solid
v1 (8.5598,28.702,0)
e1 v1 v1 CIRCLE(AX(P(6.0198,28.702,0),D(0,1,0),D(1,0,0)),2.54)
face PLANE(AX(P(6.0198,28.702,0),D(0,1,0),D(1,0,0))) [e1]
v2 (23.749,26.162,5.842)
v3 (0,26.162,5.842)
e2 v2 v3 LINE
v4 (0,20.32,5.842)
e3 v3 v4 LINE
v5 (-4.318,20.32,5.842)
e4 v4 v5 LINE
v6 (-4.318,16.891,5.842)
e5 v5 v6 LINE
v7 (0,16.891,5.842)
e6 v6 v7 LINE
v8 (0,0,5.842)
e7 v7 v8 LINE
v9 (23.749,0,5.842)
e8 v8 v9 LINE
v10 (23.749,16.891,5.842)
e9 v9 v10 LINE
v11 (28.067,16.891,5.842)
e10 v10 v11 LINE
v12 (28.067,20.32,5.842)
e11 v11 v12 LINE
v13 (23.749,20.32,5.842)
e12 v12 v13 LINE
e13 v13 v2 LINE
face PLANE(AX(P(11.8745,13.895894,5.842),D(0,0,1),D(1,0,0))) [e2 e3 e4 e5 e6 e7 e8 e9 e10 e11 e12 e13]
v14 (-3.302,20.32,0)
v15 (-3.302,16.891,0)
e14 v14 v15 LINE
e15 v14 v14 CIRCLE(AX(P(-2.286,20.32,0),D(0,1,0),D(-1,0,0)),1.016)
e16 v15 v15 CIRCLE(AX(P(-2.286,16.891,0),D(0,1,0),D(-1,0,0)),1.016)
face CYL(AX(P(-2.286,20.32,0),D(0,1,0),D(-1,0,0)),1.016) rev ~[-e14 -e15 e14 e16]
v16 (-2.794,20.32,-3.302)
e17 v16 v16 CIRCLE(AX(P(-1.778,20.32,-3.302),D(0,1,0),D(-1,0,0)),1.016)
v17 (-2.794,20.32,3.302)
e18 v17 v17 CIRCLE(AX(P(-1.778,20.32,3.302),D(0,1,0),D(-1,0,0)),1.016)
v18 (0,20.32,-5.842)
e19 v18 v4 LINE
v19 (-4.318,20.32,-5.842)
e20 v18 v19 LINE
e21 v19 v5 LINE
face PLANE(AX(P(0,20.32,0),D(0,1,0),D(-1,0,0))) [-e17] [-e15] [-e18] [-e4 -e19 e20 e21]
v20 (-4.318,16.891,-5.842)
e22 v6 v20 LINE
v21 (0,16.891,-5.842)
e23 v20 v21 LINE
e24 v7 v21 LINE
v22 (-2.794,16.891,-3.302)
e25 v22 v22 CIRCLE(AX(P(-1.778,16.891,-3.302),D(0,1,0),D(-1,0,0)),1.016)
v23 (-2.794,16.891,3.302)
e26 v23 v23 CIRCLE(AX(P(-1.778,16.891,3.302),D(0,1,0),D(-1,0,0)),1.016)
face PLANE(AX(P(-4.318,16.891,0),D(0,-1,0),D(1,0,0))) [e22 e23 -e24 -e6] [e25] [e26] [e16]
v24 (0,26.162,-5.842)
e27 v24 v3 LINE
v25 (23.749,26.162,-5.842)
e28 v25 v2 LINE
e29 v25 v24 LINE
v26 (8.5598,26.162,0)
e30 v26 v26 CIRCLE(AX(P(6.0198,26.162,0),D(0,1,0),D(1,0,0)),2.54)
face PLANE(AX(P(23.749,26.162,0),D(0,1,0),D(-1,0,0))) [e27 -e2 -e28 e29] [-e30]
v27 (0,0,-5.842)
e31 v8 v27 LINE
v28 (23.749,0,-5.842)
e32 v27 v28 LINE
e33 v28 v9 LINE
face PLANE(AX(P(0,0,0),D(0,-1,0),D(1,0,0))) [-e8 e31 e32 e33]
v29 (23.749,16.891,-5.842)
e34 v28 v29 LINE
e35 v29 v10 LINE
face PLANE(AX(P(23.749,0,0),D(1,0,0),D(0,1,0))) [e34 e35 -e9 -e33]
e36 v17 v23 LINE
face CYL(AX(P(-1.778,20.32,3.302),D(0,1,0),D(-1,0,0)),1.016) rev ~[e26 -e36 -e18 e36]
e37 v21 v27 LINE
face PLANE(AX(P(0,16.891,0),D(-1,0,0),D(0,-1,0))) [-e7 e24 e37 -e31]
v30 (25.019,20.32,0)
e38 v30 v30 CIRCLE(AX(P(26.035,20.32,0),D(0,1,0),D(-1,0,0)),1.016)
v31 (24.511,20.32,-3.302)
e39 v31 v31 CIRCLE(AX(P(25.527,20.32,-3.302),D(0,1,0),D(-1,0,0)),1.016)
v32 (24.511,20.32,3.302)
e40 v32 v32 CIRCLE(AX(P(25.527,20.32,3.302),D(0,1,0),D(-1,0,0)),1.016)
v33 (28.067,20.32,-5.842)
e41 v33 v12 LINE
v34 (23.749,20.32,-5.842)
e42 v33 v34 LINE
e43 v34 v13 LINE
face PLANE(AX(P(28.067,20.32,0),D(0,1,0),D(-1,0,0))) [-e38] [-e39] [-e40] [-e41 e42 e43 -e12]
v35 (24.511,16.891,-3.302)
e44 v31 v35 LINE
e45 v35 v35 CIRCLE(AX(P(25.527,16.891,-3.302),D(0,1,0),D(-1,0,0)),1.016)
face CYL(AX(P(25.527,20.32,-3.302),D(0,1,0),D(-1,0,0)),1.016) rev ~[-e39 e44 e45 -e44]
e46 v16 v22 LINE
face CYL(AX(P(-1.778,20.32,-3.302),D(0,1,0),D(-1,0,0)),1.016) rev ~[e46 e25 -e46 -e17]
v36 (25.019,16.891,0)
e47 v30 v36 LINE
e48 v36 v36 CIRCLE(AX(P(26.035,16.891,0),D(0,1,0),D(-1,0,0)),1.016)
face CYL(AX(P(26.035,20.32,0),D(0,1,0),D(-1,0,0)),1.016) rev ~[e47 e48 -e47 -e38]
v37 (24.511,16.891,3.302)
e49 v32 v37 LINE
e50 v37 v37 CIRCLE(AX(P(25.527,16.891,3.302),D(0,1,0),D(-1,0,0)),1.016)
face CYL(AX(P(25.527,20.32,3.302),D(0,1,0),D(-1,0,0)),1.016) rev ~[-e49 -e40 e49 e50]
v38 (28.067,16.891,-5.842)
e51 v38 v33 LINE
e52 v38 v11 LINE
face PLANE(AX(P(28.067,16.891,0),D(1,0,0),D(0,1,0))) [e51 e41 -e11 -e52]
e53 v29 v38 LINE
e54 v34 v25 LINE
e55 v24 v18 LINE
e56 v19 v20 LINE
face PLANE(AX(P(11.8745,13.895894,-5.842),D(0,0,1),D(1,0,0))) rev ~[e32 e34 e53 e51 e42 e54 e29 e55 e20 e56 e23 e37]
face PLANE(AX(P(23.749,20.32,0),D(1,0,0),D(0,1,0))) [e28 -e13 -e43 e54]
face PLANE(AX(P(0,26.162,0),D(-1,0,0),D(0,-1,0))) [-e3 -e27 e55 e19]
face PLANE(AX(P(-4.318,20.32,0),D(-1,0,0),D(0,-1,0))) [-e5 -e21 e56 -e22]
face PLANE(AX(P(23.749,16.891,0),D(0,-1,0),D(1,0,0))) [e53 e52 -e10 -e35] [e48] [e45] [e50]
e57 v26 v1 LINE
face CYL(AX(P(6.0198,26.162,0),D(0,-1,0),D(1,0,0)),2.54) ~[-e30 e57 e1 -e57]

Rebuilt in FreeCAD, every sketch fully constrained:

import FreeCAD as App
import Part
import Sketcher
Q = App.Units.Quantity


def add_polygon(sketch, points):
    """Adds a closed chain of lines whose ends are joined by coincident constraints."""
    first, n = sketch.GeometryCount, len(points)
    for a, b in zip(points, points[1:] + points[:1]):
        sketch.addGeometry(Part.LineSegment(App.Vector(*a, 0), App.Vector(*b, 0)), False)
    for i in range(n):
        sketch.addConstraint(Sketcher.Constraint("Coincident", first + i, 2, first + (i + 1) % n, 1))

doc = App.newDocument("Part")
body = doc.addObject("PartDesign::Body", "Body")

# Sketch on XY plane
sketch1 = body.newObject("Sketcher::SketchObject", "Sketch")
sketch1.AttachmentSupport = (doc.getObject("XY_Plane"), [""])
sketch1.MapMode = "FlatFace"
add_polygon(sketch1, [(0, 0), (23.7, 0), (23.7, 16.9), (28.1, 16.9), (28.1, 20.3), (23.7, 20.3), (23.7, 26.2), (0, 26.2), (0, 20.3), (-4.3, 20.3), (-4.3, 16.9), (0, 16.9)])  # lines 0-11
sketch1.addConstraint([
    Sketcher.Constraint("Horizontal", 0),
    Sketcher.Constraint("Vertical", 1),
    Sketcher.Constraint("Horizontal", 2),
    Sketcher.Constraint("Vertical", 3),
    Sketcher.Constraint("Horizontal", 4),
    Sketcher.Constraint("Vertical", 5),
    Sketcher.Constraint("Horizontal", 6),
    Sketcher.Constraint("Vertical", 7),
    Sketcher.Constraint("Horizontal", 8),
    Sketcher.Constraint("Vertical", 9),
    Sketcher.Constraint("Horizontal", 10),
    Sketcher.Constraint("Vertical", 11),
    Sketcher.Constraint("Coincident", 11, 2, -1, 1),
    Sketcher.Constraint("PointOnObject", 6, 2, -2),
    Sketcher.Constraint("Horizontal", 4, 2, 7, 2),
    Sketcher.Constraint("Horizontal", 2, 2, 9, 2),
    Sketcher.Constraint("Vertical", 1, 2, 4, 2),
    Sketcher.Constraint("Equal", 4, 8),
    Sketcher.Constraint("DistanceX", 2, 1, 2, 2, Q("0.17 in")),
    Sketcher.Constraint("DistanceY", 5, 1, 5, 2, Q("0.23 in")),
    Sketcher.Constraint("DistanceY", -1, 1, 3, 2, Q("0.8 in")),
    Sketcher.Constraint("DistanceX", 0, 1, 0, 2, Q("0.935 in")),
    Sketcher.Constraint("DistanceY", 1, 1, 1, 2, Q("0.665 in")),
])
pad1 = body.newObject("PartDesign::Pad", "Pad")
pad1.Profile = sketch1
pad1.Length = Q("0.46 in")
pad1.Midplane = True

# Sketch on XZ plane
sketch2 = body.newObject("Sketcher::SketchObject", "Sketch001")
sketch2.AttachmentSupport = (doc.getObject("XZ_Plane"), [""])
sketch2.MapMode = "FlatFace"
sketch2.AttachmentOffset = App.Placement(App.Vector(0, 0, -1.03 * 25.4), App.Rotation())
sketch2.addGeometry(Part.Circle(App.Vector(6, 0, 0), App.Vector(0, 0, 1), 2.5), False)
sketch2.addConstraint([
    Sketcher.Constraint("PointOnObject", 0, 3, -1),
    Sketcher.Constraint("Diameter", 0, Q("0.2 in")),
    Sketcher.Constraint("DistanceX", -1, 1, 0, 3, Q("0.237 in")),
])
pad2 = body.newObject("PartDesign::Pad", "Pad001")
pad2.Profile = sketch2
pad2.Length = Q("0.1 in")
pad2.Reversed = True

# Sketch on XZ plane
sketch3 = body.newObject("Sketcher::SketchObject", "Sketch002")
sketch3.AttachmentSupport = (doc.getObject("XZ_Plane"), [""])
sketch3.MapMode = "FlatFace"
sketch3.AttachmentOffset = App.Placement(App.Vector(0, 0, -0.8 * 25.4), App.Rotation())
sketch3.addGeometry(Part.Circle(App.Vector(-2.3, 0, 0), App.Vector(0, 0, 1), 1), False)
sketch3.addConstraint([
    Sketcher.Constraint("PointOnObject", 0, 3, -1),
    Sketcher.Constraint("Diameter", 0, Q("0.08 in")),
    Sketcher.Constraint("DistanceX", 0, 3, -1, 1, Q("0.09 in")),
])
pocket1 = body.newObject("PartDesign::Pocket", "Pocket")
pocket1.Profile = sketch3
pocket1.Type = "UpToFirst"
pocket1.Reversed = True

# Sketch on XZ plane
sketch4 = body.newObject("Sketcher::SketchObject", "Sketch003")
sketch4.AttachmentSupport = (doc.getObject("XZ_Plane"), [""])
sketch4.MapMode = "FlatFace"
sketch4.AttachmentOffset = App.Placement(App.Vector(0, 0, -0.8 * 25.4), App.Rotation())
sketch4.addGeometry(Part.Circle(App.Vector(-1.8, -3.3, 0), App.Vector(0, 0, 1), 1), False)
sketch4.addConstraint([
    Sketcher.Constraint("Diameter", 0, Q("0.08 in")),
    Sketcher.Constraint("DistanceX", 0, 3, -1, 1, Q("0.07 in")),
    Sketcher.Constraint("DistanceY", 0, 3, -1, 1, Q("0.13 in")),
])
pocket2 = body.newObject("PartDesign::Pocket", "Pocket001")
pocket2.Profile = sketch4
pocket2.Type = "UpToFirst"
pocket2.Reversed = True

# Sketch on XZ plane
sketch5 = body.newObject("Sketcher::SketchObject", "Sketch004")
sketch5.AttachmentSupport = (doc.getObject("XZ_Plane"), [""])
sketch5.MapMode = "FlatFace"
sketch5.AttachmentOffset = App.Placement(App.Vector(0, 0, -0.8 * 25.4), App.Rotation())
sketch5.addGeometry(Part.Circle(App.Vector(-1.8, 3.3, 0), App.Vector(0, 0, 1), 1), False)
sketch5.addConstraint([
    Sketcher.Constraint("Diameter", 0, Q("0.08 in")),
    Sketcher.Constraint("DistanceX", 0, 3, -1, 1, Q("0.07 in")),
    Sketcher.Constraint("DistanceY", -1, 1, 0, 3, Q("0.13 in")),
])
pocket3 = body.newObject("PartDesign::Pocket", "Pocket002")
pocket3.Profile = sketch5
pocket3.Type = "UpToFirst"
pocket3.Reversed = True

# Sketch on XZ plane
sketch6 = body.newObject("Sketcher::SketchObject", "Sketch005")
sketch6.AttachmentSupport = (doc.getObject("XZ_Plane"), [""])
sketch6.MapMode = "FlatFace"
sketch6.AttachmentOffset = App.Placement(App.Vector(0, 0, -0.8 * 25.4), App.Rotation())
sketch6.addGeometry(Part.Circle(App.Vector(25.5, 3.3, 0), App.Vector(0, 0, 1), 1), False)
sketch6.addConstraint([
    Sketcher.Constraint("Diameter", 0, Q("0.08 in")),
    Sketcher.Constraint("DistanceY", -1, 1, 0, 3, Q("0.13 in")),
    Sketcher.Constraint("DistanceX", -1, 1, 0, 3, Q("1.005 in")),
])
pocket4 = body.newObject("PartDesign::Pocket", "Pocket003")
pocket4.Profile = sketch6
pocket4.Type = "UpToFirst"
pocket4.Reversed = True

# Sketch on XZ plane
sketch7 = body.newObject("Sketcher::SketchObject", "Sketch006")
sketch7.AttachmentSupport = (doc.getObject("XZ_Plane"), [""])
sketch7.MapMode = "FlatFace"
sketch7.AttachmentOffset = App.Placement(App.Vector(0, 0, -0.8 * 25.4), App.Rotation())
sketch7.addGeometry(Part.Circle(App.Vector(26, 0, 0), App.Vector(0, 0, 1), 1), False)
sketch7.addConstraint([
    Sketcher.Constraint("PointOnObject", 0, 3, -1),
    Sketcher.Constraint("Diameter", 0, Q("0.08 in")),
    Sketcher.Constraint("DistanceX", -1, 1, 0, 3, Q("1.025 in")),
])
pocket5 = body.newObject("PartDesign::Pocket", "Pocket004")
pocket5.Profile = sketch7
pocket5.Type = "UpToFirst"
pocket5.Reversed = True

# Sketch on XZ plane
sketch8 = body.newObject("Sketcher::SketchObject", "Sketch007")
sketch8.AttachmentSupport = (doc.getObject("XZ_Plane"), [""])
sketch8.MapMode = "FlatFace"
sketch8.AttachmentOffset = App.Placement(App.Vector(0, 0, -0.8 * 25.4), App.Rotation())
sketch8.addGeometry(Part.Circle(App.Vector(25.5, -3.3, 0), App.Vector(0, 0, 1), 1), False)
sketch8.addConstraint([
    Sketcher.Constraint("Diameter", 0, Q("0.08 in")),
    Sketcher.Constraint("DistanceY", 0, 3, -1, 1, Q("0.13 in")),
    Sketcher.Constraint("DistanceX", -1, 1, 0, 3, Q("1.005 in")),
])
pocket6 = body.newObject("PartDesign::Pocket", "Pocket005")
pocket6.Profile = sketch8
pocket6.Type = "UpToFirst"
pocket6.Reversed = True

doc.recompute()
